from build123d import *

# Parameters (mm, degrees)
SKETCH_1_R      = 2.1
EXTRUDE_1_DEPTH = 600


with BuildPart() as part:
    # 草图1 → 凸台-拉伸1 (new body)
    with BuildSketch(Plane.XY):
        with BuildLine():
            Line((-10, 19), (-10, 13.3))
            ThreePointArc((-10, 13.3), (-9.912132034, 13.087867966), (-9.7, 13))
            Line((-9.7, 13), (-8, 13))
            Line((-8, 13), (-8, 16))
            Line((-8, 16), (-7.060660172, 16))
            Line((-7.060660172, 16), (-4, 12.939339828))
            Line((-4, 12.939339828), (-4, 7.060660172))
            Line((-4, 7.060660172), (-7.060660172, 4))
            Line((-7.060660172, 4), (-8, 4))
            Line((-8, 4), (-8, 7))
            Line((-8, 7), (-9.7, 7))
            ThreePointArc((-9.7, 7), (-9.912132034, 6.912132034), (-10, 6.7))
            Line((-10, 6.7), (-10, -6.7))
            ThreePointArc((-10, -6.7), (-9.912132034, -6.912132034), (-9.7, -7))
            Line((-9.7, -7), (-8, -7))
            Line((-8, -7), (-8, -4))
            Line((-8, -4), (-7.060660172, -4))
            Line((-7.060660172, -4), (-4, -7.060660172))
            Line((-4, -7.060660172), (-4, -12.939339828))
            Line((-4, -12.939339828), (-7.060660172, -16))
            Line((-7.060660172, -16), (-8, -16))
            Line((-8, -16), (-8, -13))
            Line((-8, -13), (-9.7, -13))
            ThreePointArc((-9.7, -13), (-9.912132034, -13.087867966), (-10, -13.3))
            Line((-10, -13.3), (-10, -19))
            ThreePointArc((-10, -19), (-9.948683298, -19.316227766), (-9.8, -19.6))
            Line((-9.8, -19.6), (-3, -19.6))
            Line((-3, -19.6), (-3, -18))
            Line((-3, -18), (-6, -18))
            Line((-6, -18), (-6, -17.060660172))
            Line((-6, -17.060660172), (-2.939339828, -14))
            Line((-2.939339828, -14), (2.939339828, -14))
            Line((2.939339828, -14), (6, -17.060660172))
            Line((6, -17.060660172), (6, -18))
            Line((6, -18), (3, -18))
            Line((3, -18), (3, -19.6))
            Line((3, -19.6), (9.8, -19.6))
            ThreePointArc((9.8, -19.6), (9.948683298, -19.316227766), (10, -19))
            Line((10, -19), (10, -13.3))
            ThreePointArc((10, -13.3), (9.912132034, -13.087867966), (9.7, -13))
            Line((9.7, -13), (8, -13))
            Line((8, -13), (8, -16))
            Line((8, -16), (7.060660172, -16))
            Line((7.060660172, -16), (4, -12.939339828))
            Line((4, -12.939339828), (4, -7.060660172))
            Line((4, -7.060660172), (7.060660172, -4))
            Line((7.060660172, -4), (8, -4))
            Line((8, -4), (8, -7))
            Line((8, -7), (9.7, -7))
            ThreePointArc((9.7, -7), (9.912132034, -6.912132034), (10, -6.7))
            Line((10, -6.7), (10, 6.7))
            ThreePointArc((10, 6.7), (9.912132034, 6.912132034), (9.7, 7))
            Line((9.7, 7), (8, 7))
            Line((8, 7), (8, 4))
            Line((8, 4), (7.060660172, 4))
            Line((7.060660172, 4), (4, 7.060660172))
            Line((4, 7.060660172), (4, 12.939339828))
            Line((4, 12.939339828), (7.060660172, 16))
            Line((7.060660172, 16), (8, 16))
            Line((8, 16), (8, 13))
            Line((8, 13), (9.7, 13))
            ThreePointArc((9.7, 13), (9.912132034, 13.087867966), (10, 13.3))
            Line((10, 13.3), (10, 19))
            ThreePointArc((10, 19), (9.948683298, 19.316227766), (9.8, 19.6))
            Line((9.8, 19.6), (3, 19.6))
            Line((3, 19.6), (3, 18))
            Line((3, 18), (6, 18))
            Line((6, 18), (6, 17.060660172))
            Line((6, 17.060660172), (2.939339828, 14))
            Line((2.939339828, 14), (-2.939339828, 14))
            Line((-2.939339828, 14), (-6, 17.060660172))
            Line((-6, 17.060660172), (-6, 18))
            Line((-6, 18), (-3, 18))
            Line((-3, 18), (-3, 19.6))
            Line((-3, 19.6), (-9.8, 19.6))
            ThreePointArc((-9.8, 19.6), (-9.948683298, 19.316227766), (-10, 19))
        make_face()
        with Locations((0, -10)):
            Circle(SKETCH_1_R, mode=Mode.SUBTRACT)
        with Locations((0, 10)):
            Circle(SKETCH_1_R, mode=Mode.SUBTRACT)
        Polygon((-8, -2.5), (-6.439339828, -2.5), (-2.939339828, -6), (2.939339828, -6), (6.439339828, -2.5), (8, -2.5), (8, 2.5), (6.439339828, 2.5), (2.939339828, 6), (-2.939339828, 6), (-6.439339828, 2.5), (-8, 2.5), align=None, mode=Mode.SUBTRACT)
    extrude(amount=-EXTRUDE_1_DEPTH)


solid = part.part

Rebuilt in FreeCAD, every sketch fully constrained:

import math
import FreeCAD as App
import Part
import Sketcher
from FreeCAD import Vector

doc = App.newDocument("Part")
body = doc.addObject("PartDesign::Body", "Body")

sketch1 = body.newObject("Sketcher::SketchObject", "Sketch")
sketch1.AttachmentSupport = (doc.getObject("XY_Plane"), [""])
sketch1.MapMode = "FlatFace"
sketch1.addGeometry(Part.LineSegment(Vector(-10, 19, 0), Vector(-10, 13.3, 0)), False)
sketch1.addGeometry(Part.ArcOfCircle(Part.Circle(Vector(-9.7, 13.3, 0), Vector(0, 0, 1), 0.3), math.radians(-180), math.radians(-90)), False)
sketch1.addGeometry(Part.LineSegment(Vector(-9.7, 13, 0), Vector(-8, 13, 0)), False)
sketch1.addGeometry(Part.LineSegment(Vector(-8, 13, 0), Vector(-8, 16, 0)), False)
sketch1.addGeometry(Part.LineSegment(Vector(-8, 16, 0), Vector(-7.06, 16, 0)), False)
sketch1.addGeometry(Part.LineSegment(Vector(-7.06, 16, 0), Vector(-4, 12.94, 0)), False)
sketch1.addGeometry(Part.LineSegment(Vector(-4, 12.94, 0), Vector(-4, 7.06, 0)), False)
sketch1.addGeometry(Part.LineSegment(Vector(-4, 7.06, 0), Vector(-7.06, 4, 0)), False)
sketch1.addGeometry(Part.LineSegment(Vector(-7.06, 4, 0), Vector(-8, 4, 0)), False)
sketch1.addGeometry(Part.LineSegment(Vector(-8, 4, 0), Vector(-8, 7, 0)), False)
sketch1.addGeometry(Part.LineSegment(Vector(-8, 7, 0), Vector(-9.7, 7, 0)), False)
sketch1.addGeometry(Part.ArcOfCircle(Part.Circle(Vector(-9.7, 6.7, 0), Vector(0, 0, 1), 0.3), math.radians(90), math.radians(180)), False)
sketch1.addGeometry(Part.LineSegment(Vector(-10, 6.7, 0), Vector(-10, -6.7, 0)), False)
sketch1.addGeometry(Part.ArcOfCircle(Part.Circle(Vector(-9.7, -6.7, 0), Vector(0, 0, 1), 0.3), math.radians(-180), math.radians(-90)), False)
sketch1.addGeometry(Part.LineSegment(Vector(-9.7, -7, 0), Vector(-8, -7, 0)), False)
sketch1.addGeometry(Part.LineSegment(Vector(-8, -7, 0), Vector(-8, -4, 0)), False)
sketch1.addGeometry(Part.LineSegment(Vector(-8, -4, 0), Vector(-7.06, -4, 0)), False)
sketch1.addGeometry(Part.LineSegment(Vector(-7.06, -4, 0), Vector(-4, -7.06, 0)), False)
sketch1.addGeometry(Part.LineSegment(Vector(-4, -7.06, 0), Vector(-4, -12.94, 0)), False)
sketch1.addGeometry(Part.LineSegment(Vector(-4, -12.94, 0), Vector(-7.06, -16, 0)), False)
sketch1.addGeometry(Part.LineSegment(Vector(-7.06, -16, 0), Vector(-8, -16, 0)), False)
sketch1.addGeometry(Part.LineSegment(Vector(-8, -16, 0), Vector(-8, -13, 0)), False)
sketch1.addGeometry(Part.LineSegment(Vector(-8, -13, 0), Vector(-9.7, -13, 0)), False)
sketch1.addGeometry(Part.ArcOfCircle(Part.Circle(Vector(-9.7, -13.3, 0), Vector(0, 0, 1), 0.3), math.radians(90), math.radians(180)), False)
sketch1.addGeometry(Part.LineSegment(Vector(-10, -13.3, 0), Vector(-10, -19, 0)), False)
sketch1.addGeometry(Part.ArcOfCircle(Part.Circle(Vector(-9, -19, 0), Vector(0, 0, 1), 1), math.radians(180), math.radians(217)), False)
sketch1.addGeometry(Part.LineSegment(Vector(-9.8, -19.6, 0), Vector(-3, -19.6, 0)), False)
sketch1.addGeometry(Part.LineSegment(Vector(-3, -19.6, 0), Vector(-3, -18, 0)), False)
sketch1.addGeometry(Part.LineSegment(Vector(-3, -18, 0), Vector(-6, -18, 0)), False)
sketch1.addGeometry(Part.LineSegment(Vector(-6, -18, 0), Vector(-6, -17.06, 0)), False)
sketch1.addGeometry(Part.LineSegment(Vector(-6, -17.06, 0), Vector(-2.94, -14, 0)), False)
sketch1.addGeometry(Part.LineSegment(Vector(-2.94, -14, 0), Vector(2.94, -14, 0)), False)
sketch1.addGeometry(Part.LineSegment(Vector(2.94, -14, 0), Vector(6, -17.06, 0)), False)
sketch1.addGeometry(Part.LineSegment(Vector(6, -17.06, 0), Vector(6, -18, 0)), False)
sketch1.addGeometry(Part.LineSegment(Vector(6, -18, 0), Vector(3, -18, 0)), False)
sketch1.addGeometry(Part.LineSegment(Vector(3, -18, 0), Vector(3, -19.6, 0)), False)
sketch1.addGeometry(Part.LineSegment(Vector(3, -19.6, 0), Vector(9.8, -19.6, 0)), False)
sketch1.addGeometry(Part.ArcOfCircle(Part.Circle(Vector(9, -19, 0), Vector(0, 0, 1), 1), math.radians(-37), math.radians(0)), False)
sketch1.addGeometry(Part.LineSegment(Vector(10, -19, 0), Vector(10, -13.3, 0)), False)
sketch1.addGeometry(Part.ArcOfCircle(Part.Circle(Vector(9.7, -13.3, 0), Vector(0, 0, 1), 0.3), math.radians(0), math.radians(90)), False)
sketch1.addGeometry(Part.LineSegment(Vector(9.7, -13, 0), Vector(8, -13, 0)), False)
sketch1.addGeometry(Part.LineSegment(Vector(8, -13, 0), Vector(8, -16, 0)), False)
sketch1.addGeometry(Part.LineSegment(Vector(8, -16, 0), Vector(7.06, -16, 0)), False)
sketch1.addGeometry(Part.LineSegment(Vector(7.06, -16, 0), Vector(4, -12.94, 0)), False)
sketch1.addGeometry(Part.LineSegment(Vector(4, -12.94, 0), Vector(4, -7.06, 0)), False)
sketch1.addGeometry(Part.LineSegment(Vector(4, -7.06, 0), Vector(7.06, -4, 0)), False)
sketch1.addGeometry(Part.LineSegment(Vector(7.06, -4, 0), Vector(8, -4, 0)), False)
sketch1.addGeometry(Part.LineSegment(Vector(8, -4, 0), Vector(8, -7, 0)), False)
sketch1.addGeometry(Part.LineSegment(Vector(8, -7, 0), Vector(9.7, -7, 0)), False)
sketch1.addGeometry(Part.ArcOfCircle(Part.Circle(Vector(9.7, -6.7, 0), Vector(0, 0, 1), 0.3), math.radians(-90), math.radians(0)), False)
sketch1.addGeometry(Part.LineSegment(Vector(10, -6.7, 0), Vector(10, 6.7, 0)), False)
sketch1.addGeometry(Part.ArcOfCircle(Part.Circle(Vector(9.7, 6.7, 0), Vector(0, 0, 1), 0.3), math.radians(0), math.radians(90)), False)
sketch1.addGeometry(Part.LineSegment(Vector(9.7, 7, 0), Vector(8, 7, 0)), False)
sketch1.addGeometry(Part.LineSegment(Vector(8, 7, 0), Vector(8, 4, 0)), False)
sketch1.addGeometry(Part.LineSegment(Vector(8, 4, 0), Vector(7.06, 4, 0)), False)
sketch1.addGeometry(Part.LineSegment(Vector(7.06, 4, 0), Vector(4, 7.06, 0)), False)
sketch1.addGeometry(Part.LineSegment(Vector(4, 7.06, 0), Vector(4, 12.94, 0)), False)
sketch1.addGeometry(Part.LineSegment(Vector(4, 12.94, 0), Vector(7.06, 16, 0)), False)
sketch1.addGeometry(Part.LineSegment(Vector(7.06, 16, 0), Vector(8, 16, 0)), False)
sketch1.addGeometry(Part.LineSegment(Vector(8, 16, 0), Vector(8, 13, 0)), False)
sketch1.addGeometry(Part.LineSegment(Vector(8, 13, 0), Vector(9.7, 13, 0)), False)
sketch1.addGeometry(Part.ArcOfCircle(Part.Circle(Vector(9.7, 13.3, 0), Vector(0, 0, 1), 0.3), math.radians(-90), math.radians(0)), False)
sketch1.addGeometry(Part.LineSegment(Vector(10, 13.3, 0), Vector(10, 19, 0)), False)
sketch1.addGeometry(Part.ArcOfCircle(Part.Circle(Vector(9, 19, 0), Vector(0, 0, 1), 1), math.radians(0), math.radians(37)), False)
sketch1.addGeometry(Part.LineSegment(Vector(9.8, 19.6, 0), Vector(3, 19.6, 0)), False)
sketch1.addGeometry(Part.LineSegment(Vector(3, 19.6, 0), Vector(3, 18, 0)), False)
sketch1.addGeometry(Part.LineSegment(Vector(3, 18, 0), Vector(6, 18, 0)), False)
sketch1.addGeometry(Part.LineSegment(Vector(6, 18, 0), Vector(6, 17.06, 0)), False)
sketch1.addGeometry(Part.LineSegment(Vector(6, 17.06, 0), Vector(2.94, 14, 0)), False)
sketch1.addGeometry(Part.LineSegment(Vector(2.94, 14, 0), Vector(-2.94, 14, 0)), False)
sketch1.addGeometry(Part.LineSegment(Vector(-2.94, 14, 0), Vector(-6, 17.06, 0)), False)
sketch1.addGeometry(Part.LineSegment(Vector(-6, 17.06, 0), Vector(-6, 18, 0)), False)
sketch1.addGeometry(Part.LineSegment(Vector(-6, 18, 0), Vector(-3, 18, 0)), False)
sketch1.addGeometry(Part.LineSegment(Vector(-3, 18, 0), Vector(-3, 19.6, 0)), False)
sketch1.addGeometry(Part.LineSegment(Vector(-3, 19.6, 0), Vector(-9.8, 19.6, 0)), False)
sketch1.addGeometry(Part.ArcOfCircle(Part.Circle(Vector(-9, 19, 0), Vector(0, 0, 1), 1), math.radians(143), math.radians(180)), False)
sketch1.addGeometry(Part.Circle(Vector(0, -10, 0), Vector(0, 0, 1), 2.1), False)
sketch1.addGeometry(Part.LineSegment(Vector(-6.44, -2.5, 0), Vector(-8, -2.5, 0)), False)
sketch1.addGeometry(Part.LineSegment(Vector(-8, -2.5, 0), Vector(-8, 2.5, 0)), False)
sketch1.addGeometry(Part.LineSegment(Vector(-8, 2.5, 0), Vector(-6.44, 2.5, 0)), False)
sketch1.addGeometry(Part.LineSegment(Vector(-6.44, 2.5, 0), Vector(-2.94, 6, 0)), False)
sketch1.addGeometry(Part.LineSegment(Vector(-2.94, 6, 0), Vector(2.94, 6, 0)), False)
sketch1.addGeometry(Part.LineSegment(Vector(2.94, 6, 0), Vector(6.44, 2.5, 0)), False)
sketch1.addGeometry(Part.LineSegment(Vector(6.44, 2.5, 0), Vector(8, 2.5, 0)), False)
sketch1.addGeometry(Part.LineSegment(Vector(8, 2.5, 0), Vector(8, -2.5, 0)), False)
sketch1.addGeometry(Part.LineSegment(Vector(8, -2.5, 0), Vector(6.44, -2.5, 0)), False)
sketch1.addGeometry(Part.LineSegment(Vector(6.44, -2.5, 0), Vector(2.94, -6, 0)), False)
sketch1.addGeometry(Part.LineSegment(Vector(2.94, -6, 0), Vector(-2.94, -6, 0)), False)
sketch1.addGeometry(Part.LineSegment(Vector(-2.94, -6, 0), Vector(-6.44, -2.5, 0)), False)
sketch1.addGeometry(Part.Circle(Vector(0, 10, 0), Vector(0, 0, 1), 2.1), False)
sketch1.addConstraint(Sketcher.Constraint("Tangent", 0, 2, 1, 1))
sketch1.addConstraint(Sketcher.Constraint("Tangent", 1, 2, 2, 1))
sketch1.addConstraint(Sketcher.Constraint("Coincident", 2, 2, 3, 1))
sketch1.addConstraint(Sketcher.Constraint("Coincident", 3, 2, 4, 1))
sketch1.addConstraint(Sketcher.Constraint("Coincident", 4, 2, 5, 1))
sketch1.addConstraint(Sketcher.Constraint("Coincident", 5, 2, 6, 1))
sketch1.addConstraint(Sketcher.Constraint("Coincident", 6, 2, 7, 1))
sketch1.addConstraint(Sketcher.Constraint("Coincident", 7, 2, 8, 1))
sketch1.addConstraint(Sketcher.Constraint("Coincident", 8, 2, 9, 1))
sketch1.addConstraint(Sketcher.Constraint("Coincident", 9, 2, 10, 1))
sketch1.addConstraint(Sketcher.Constraint("Tangent", 10, 2, 11, 1))
sketch1.addConstraint(Sketcher.Constraint("Tangent", 11, 2, 12, 1))
sketch1.addConstraint(Sketcher.Constraint("Tangent", 12, 2, 13, 1))
sketch1.addConstraint(Sketcher.Constraint("Tangent", 13, 2, 14, 1))
sketch1.addConstraint(Sketcher.Constraint("Coincident", 14, 2, 15, 1))
sketch1.addConstraint(Sketcher.Constraint("Coincident", 15, 2, 16, 1))
sketch1.addConstraint(Sketcher.Constraint("Coincident", 16, 2, 17, 1))
sketch1.addConstraint(Sketcher.Constraint("Coincident", 17, 2, 18, 1))
sketch1.addConstraint(Sketcher.Constraint("Coincident", 18, 2, 19, 1))
sketch1.addConstraint(Sketcher.Constraint("Coincident", 19, 2, 20, 1))
sketch1.addConstraint(Sketcher.Constraint("Coincident", 20, 2, 21, 1))
sketch1.addConstraint(Sketcher.Constraint("Coincident", 21, 2, 22, 1))
sketch1.addConstraint(Sketcher.Constraint("Tangent", 22, 2, 23, 1))
sketch1.addConstraint(Sketcher.Constraint("Tangent", 23, 2, 24, 1))
sketch1.addConstraint(Sketcher.Constraint("Tangent", 24, 2, 25, 1))
sketch1.addConstraint(Sketcher.Constraint("Coincident", 25, 2, 26, 1))
sketch1.addConstraint(Sketcher.Constraint("Coincident", 26, 2, 27, 1))
sketch1.addConstraint(Sketcher.Constraint("Coincident", 27, 2, 28, 1))
sketch1.addConstraint(Sketcher.Constraint("Coincident", 28, 2, 29, 1))
sketch1.addConstraint(Sketcher.Constraint("Coincident", 29, 2, 30, 1))
sketch1.addConstraint(Sketcher.Constraint("Coincident", 30, 2, 31, 1))
sketch1.addConstraint(Sketcher.Constraint("Coincident", 31, 2, 32, 1))
sketch1.addConstraint(Sketcher.Constraint("Coincident", 32, 2, 33, 1))
sketch1.addConstraint(Sketcher.Constraint("Coincident", 33, 2, 34, 1))
sketch1.addConstraint(Sketcher.Constraint("Coincident", 34, 2, 35, 1))
sketch1.addConstraint(Sketcher.Constraint("Coincident", 35, 2, 36, 1))
sketch1.addConstraint(Sketcher.Constraint("Coincident", 36, 2, 37, 1))
sketch1.addConstraint(Sketcher.Constraint("Tangent", 37, 2, 38, 1))
sketch1.addConstraint(Sketcher.Constraint("Tangent", 38, 2, 39, 1))
sketch1.addConstraint(Sketcher.Constraint("Tangent", 39, 2, 40, 1))
sketch1.addConstraint(Sketcher.Constraint("Coincident", 40, 2, 41, 1))
sketch1.addConstraint(Sketcher.Constraint("Coincident", 41, 2, 42, 1))
sketch1.addConstraint(Sketcher.Constraint("Coincident", 42, 2, 43, 1))
sketch1.addConstraint(Sketcher.Constraint("Coincident", 43, 2, 44, 1))
sketch1.addConstraint(Sketcher.Constraint("Coincident", 44, 2, 45, 1))
sketch1.addConstraint(Sketcher.Constraint("Coincident", 45, 2, 46, 1))
sketch1.addConstraint(Sketcher.Constraint("Coincident", 46, 2, 47, 1))
sketch1.addConstraint(Sketcher.Constraint("Coincident", 47, 2, 48, 1))
sketch1.addConstraint(Sketcher.Constraint("Tangent", 48, 2, 49, 1))
sketch1.addConstraint(Sketcher.Constraint("Tangent", 49, 2, 50, 1))
sketch1.addConstraint(Sketcher.Constraint("Tangent", 50, 2, 51, 1))
sketch1.addConstraint(Sketcher.Constraint("Tangent", 51, 2, 52, 1))
sketch1.addConstraint(Sketcher.Constraint("Coincident", 52, 2, 53, 1))
sketch1.addConstraint(Sketcher.Constraint("Coincident", 53, 2, 54, 1))
sketch1.addConstraint(Sketcher.Constraint("Coincident", 54, 2, 55, 1))
sketch1.addConstraint(Sketcher.Constraint("Coincident", 55, 2, 56, 1))
sketch1.addConstraint(Sketcher.Constraint("Coincident", 56, 2, 57, 1))
sketch1.addConstraint(Sketcher.Constraint("Coincident", 57, 2, 58, 1))
sketch1.addConstraint(Sketcher.Constraint("Coincident", 58, 2, 59, 1))
sketch1.addConstraint(Sketcher.Constraint("Coincident", 59, 2, 60, 1))
sketch1.addConstraint(Sketcher.Constraint("Tangent", 60, 2, 61, 1))
sketch1.addConstraint(Sketcher.Constraint("Tangent", 61, 2, 62, 1))
sketch1.addConstraint(Sketcher.Constraint("Tangent", 62, 2, 63, 1))
sketch1.addConstraint(Sketcher.Constraint("Coincident", 63, 2, 64, 1))
sketch1.addConstraint(Sketcher.Constraint("Coincident", 64, 2, 65, 1))
sketch1.addConstraint(Sketcher.Constraint("Coincident", 65, 2, 66, 1))
sketch1.addConstraint(Sketcher.Constraint("Coincident", 66, 2, 67, 1))
sketch1.addConstraint(Sketcher.Constraint("Coincident", 67, 2, 68, 1))
sketch1.addConstraint(Sketcher.Constraint("Coincident", 68, 2, 69, 1))
sketch1.addConstraint(Sketcher.Constraint("Coincident", 69, 2, 70, 1))
sketch1.addConstraint(Sketcher.Constraint("Coincident", 70, 2, 71, 1))
sketch1.addConstraint(Sketcher.Constraint("Coincident", 71, 2, 72, 1))
sketch1.addConstraint(Sketcher.Constraint("Coincident", 72, 2, 73, 1))
sketch1.addConstraint(Sketcher.Constraint("Coincident", 73, 2, 74, 1))
sketch1.addConstraint(Sketcher.Constraint("Coincident", 74, 2, 75, 1))
sketch1.addConstraint(Sketcher.Constraint("Tangent", 75, 2, 0, 1))
sketch1.addConstraint(Sketcher.Constraint("Coincident", 77, 2, 78, 1))
sketch1.addConstraint(Sketcher.Constraint("Coincident", 78, 2, 79, 1))
sketch1.addConstraint(Sketcher.Constraint("Coincident", 79, 2, 80, 1))
sketch1.addConstraint(Sketcher.Constraint("Coincident", 80, 2, 81, 1))
sketch1.addConstraint(Sketcher.Constraint("Coincident", 81, 2, 82, 1))
sketch1.addConstraint(Sketcher.Constraint("Coincident", 82, 2, 83, 1))
sketch1.addConstraint(Sketcher.Constraint("Coincident", 83, 2, 84, 1))
sketch1.addConstraint(Sketcher.Constraint("Coincident", 84, 2, 85, 1))
sketch1.addConstraint(Sketcher.Constraint("Coincident", 85, 2, 86, 1))
sketch1.addConstraint(Sketcher.Constraint("Coincident", 86, 2, 87, 1))
sketch1.addConstraint(Sketcher.Constraint("Coincident", 87, 2, 88, 1))
sketch1.addConstraint(Sketcher.Constraint("Coincident", 88, 2, 77, 1))
sketch1.addConstraint(Sketcher.Constraint("Vertical", 0))
sketch1.addConstraint(Sketcher.Constraint("Horizontal", 2))
sketch1.addConstraint(Sketcher.Constraint("Vertical", 3))
sketch1.addConstraint(Sketcher.Constraint("Horizontal", 4))
sketch1.addConstraint(Sketcher.Constraint("Vertical", 6))
sketch1.addConstraint(Sketcher.Constraint("Horizontal", 8))
sketch1.addConstraint(Sketcher.Constraint("Vertical", 9))
sketch1.addConstraint(Sketcher.Constraint("Horizontal", 10))
sketch1.addConstraint(Sketcher.Constraint("Vertical", 12))
sketch1.addConstraint(Sketcher.Constraint("Horizontal", 14))
sketch1.addConstraint(Sketcher.Constraint("Vertical", 15))
sketch1.addConstraint(Sketcher.Constraint("Horizontal", 16))
sketch1.addConstraint(Sketcher.Constraint("Vertical", 18))
sketch1.addConstraint(Sketcher.Constraint("Horizontal", 20))
sketch1.addConstraint(Sketcher.Constraint("Vertical", 21))
sketch1.addConstraint(Sketcher.Constraint("Horizontal", 22))
sketch1.addConstraint(Sketcher.Constraint("Vertical", 24))
sketch1.addConstraint(Sketcher.Constraint("Horizontal", 26))
sketch1.addConstraint(Sketcher.Constraint("Vertical", 27))
sketch1.addConstraint(Sketcher.Constraint("Horizontal", 28))
sketch1.addConstraint(Sketcher.Constraint("Vertical", 29))
sketch1.addConstraint(Sketcher.Constraint("Horizontal", 31))
sketch1.addConstraint(Sketcher.Constraint("Vertical", 33))
sketch1.addConstraint(Sketcher.Constraint("Horizontal", 34))
sketch1.addConstraint(Sketcher.Constraint("Vertical", 35))
sketch1.addConstraint(Sketcher.Constraint("Horizontal", 36))
sketch1.addConstraint(Sketcher.Constraint("Vertical", 38))
sketch1.addConstraint(Sketcher.Constraint("Horizontal", 40))
sketch1.addConstraint(Sketcher.Constraint("Vertical", 41))
sketch1.addConstraint(Sketcher.Constraint("Horizontal", 42))
sketch1.addConstraint(Sketcher.Constraint("Vertical", 44))
sketch1.addConstraint(Sketcher.Constraint("Horizontal", 46))
sketch1.addConstraint(Sketcher.Constraint("Vertical", 47))
sketch1.addConstraint(Sketcher.Constraint("Horizontal", 48))
sketch1.addConstraint(Sketcher.Constraint("Vertical", 50))
sketch1.addConstraint(Sketcher.Constraint("Horizontal", 52))
sketch1.addConstraint(Sketcher.Constraint("Vertical", 53))
sketch1.addConstraint(Sketcher.Constraint("Horizontal", 54))
sketch1.addConstraint(Sketcher.Constraint("Vertical", 56))
sketch1.addConstraint(Sketcher.Constraint("Horizontal", 58))
sketch1.addConstraint(Sketcher.Constraint("Vertical", 59))
sketch1.addConstraint(Sketcher.Constraint("Horizontal", 60))
sketch1.addConstraint(Sketcher.Constraint("Vertical", 62))
sketch1.addConstraint(Sketcher.Constraint("Horizontal", 64))
sketch1.addConstraint(Sketcher.Constraint("Vertical", 65))
sketch1.addConstraint(Sketcher.Constraint("Horizontal", 66))
sketch1.addConstraint(Sketcher.Constraint("Vertical", 67))
sketch1.addConstraint(Sketcher.Constraint("Horizontal", 69))
sketch1.addConstraint(Sketcher.Constraint("Vertical", 71))
sketch1.addConstraint(Sketcher.Constraint("Horizontal", 72))
sketch1.addConstraint(Sketcher.Constraint("Vertical", 73))
sketch1.addConstraint(Sketcher.Constraint("Horizontal", 74))
sketch1.addConstraint(Sketcher.Constraint("Horizontal", 77))
sketch1.addConstraint(Sketcher.Constraint("Vertical", 78))
sketch1.addConstraint(Sketcher.Constraint("Horizontal", 79))
sketch1.addConstraint(Sketcher.Constraint("Horizontal", 81))
sketch1.addConstraint(Sketcher.Constraint("Horizontal", 83))
sketch1.addConstraint(Sketcher.Constraint("Vertical", 84))
sketch1.addConstraint(Sketcher.Constraint("Horizontal", 85))
sketch1.addConstraint(Sketcher.Constraint("Horizontal", 87))
sketch1.addConstraint(Sketcher.Constraint("Equal", 1, 11))
sketch1.addConstraint(Sketcher.Constraint("Equal", 11, 13))
sketch1.addConstraint(Sketcher.Constraint("Equal", 13, 23))
sketch1.addConstraint(Sketcher.Constraint("Equal", 25, 37))
sketch1.addConstraint(Sketcher.Constraint("Equal", 23, 39))
sketch1.addConstraint(Sketcher.Constraint("Equal", 39, 49))
sketch1.addConstraint(Sketcher.Constraint("Equal", 49, 51))
sketch1.addConstraint(Sketcher.Constraint("Equal", 51, 61))
sketch1.addConstraint(Sketcher.Constraint("Equal", 37, 63))
sketch1.addConstraint(Sketcher.Constraint("Equal", 63, 75))
sketch1.addConstraint(Sketcher.Constraint("Equal", 76, 89))
sketch1.addConstraint(Sketcher.Constraint("Symmetric", 1, 3, 39, 3, -1, 1))
sketch1.addConstraint(Sketcher.Constraint("Symmetric", 11, 3, 49, 3, -1, 1))
sketch1.addConstraint(Sketcher.Constraint("Symmetric", 23, 3, 61, 3, -1, 1))
sketch1.addConstraint(Sketcher.Constraint("Symmetric", 76, 3, 89, 3, -1, 1))
sketch1.addConstraint(Sketcher.Constraint("Symmetric", 3, 2, 41, 2, -1, 1))
sketch1.addConstraint(Sketcher.Constraint("Symmetric", 5, 2, 43, 2, -1, 1))
sketch1.addConstraint(Sketcher.Constraint("Symmetric", 7, 2, 45, 2, -1, 1))
sketch1.addConstraint(Sketcher.Constraint("Symmetric", 14, 2, 52, 2, -1, 1))
sketch1.addConstraint(Sketcher.Constraint("Symmetric", 16, 2, 54, 2, -1, 1))
sketch1.addConstraint(Sketcher.Constraint("Symmetric", 17, 2, 55, 2, -1, 1))
sketch1.addConstraint(Sketcher.Constraint("Symmetric", 19, 2, 57, 2, -1, 1))
sketch1.addConstraint(Sketcher.Constraint("Symmetric", 25, 2, 63, 2, -1, 1))
sketch1.addConstraint(Sketcher.Constraint("Symmetric", 27, 2, 65, 2, -1, 1))
sketch1.addConstraint(Sketcher.Constraint("Symmetric", 29, 2, 67, 2, -1, 1))
sketch1.addConstraint(Sketcher.Constraint("Symmetric", 30, 2, 68, 2, -1, 1))
sketch1.addConstraint(Sketcher.Constraint("Symmetric", 32, 2, 70, 2, -1, 1))
sketch1.addConstraint(Sketcher.Constraint("Symmetric", 34, 2, 72, 2, -1, 1))
sketch1.addConstraint(Sketcher.Constraint("Symmetric", 36, 2, 74, 2, -1, 1))
sketch1.addConstraint(Sketcher.Constraint("Symmetric", 77, 2, 83, 2, -1, 1))
sketch1.addConstraint(Sketcher.Constraint("Symmetric", 79, 2, 85, 2, -1, 1))
sketch1.addConstraint(Sketcher.Constraint("Symmetric", 80, 2, 86, 2, -1, 1))
sketch1.addConstraint(Sketcher.Constraint("Symmetric", 25, 3, 37, 3, -2))
sketch1.addConstraint(Sketcher.Constraint("Symmetric", 29, 2, 32, 2, -2))
sketch1.addConstraint(Sketcher.Constraint("Symmetric", 27, 2, 34, 2, -2))
sketch1.addConstraint(Sketcher.Constraint("Symmetric", 21, 2, 40, 2, -2))
sketch1.addConstraint(Sketcher.Constraint("Symmetric", 19, 2, 42, 2, -2))
sketch1.addConstraint(Sketcher.Constraint("Symmetric", 18, 2, 43, 2, -2))
sketch1.addConstraint(Sketcher.Constraint("Symmetric", 16, 2, 45, 2, -2))
sketch1.addConstraint(Sketcher.Constraint("Symmetric", 14, 2, 47, 2, -2))
sketch1.addConstraint(Sketcher.Constraint("Symmetric", 79, 2, 82, 2, -2))
sketch1.addConstraint(Sketcher.Constraint("PointOnObject", 76, 3, -2))
sketch1.addConstraint(Sketcher.Constraint("Perpendicular", 5, 7))
sketch1.addConstraint(Sketcher.Constraint("Perpendicular", 7, 17))
sketch1.addConstraint(Sketcher.Constraint("Perpendicular", 17, 19))
sketch1.addConstraint(Sketcher.Constraint("Parallel", 19, 30))
sketch1.addConstraint(Sketcher.Constraint("Perpendicular", 30, 32))
sketch1.addConstraint(Sketcher.Constraint("Parallel", 32, 43))
sketch1.addConstraint(Sketcher.Constraint("Perpendicular", 43, 45))
sketch1.addConstraint(Sketcher.Constraint("Perpendicular", 55, 57))
sketch1.addConstraint(Sketcher.Constraint("Perpendicular", 68, 70))
sketch1.addConstraint(Sketcher.Constraint("Perpendicular", 70, 80))
sketch1.addConstraint(Sketcher.Constraint("Perpendicular", 80, 82))
sketch1.addConstraint(Sketcher.Constraint("Perpendicular", 86, 88))
sketch1.addConstraint(Sketcher.Constraint("Horizontal", 26, 2, 35, 2))
sketch1.addConstraint(Sketcher.Constraint("Vertical", 1, 3, 11, 3))
sketch1.addConstraint(Sketcher.Constraint("Vertical", 4, 2, 7, 2))
sketch1.addConstraint(Sketcher.Constraint("Vertical", 3, 2, 8, 2))
sketch1.addConstraint(Sketcher.Constraint("Vertical", 9, 2, 14, 2))
sketch1.addConstraint(Sketcher.Constraint("Vertical", 53, 2, 58, 2))
sketch1.addConstraint(Sketcher.Constraint("Vertical", 21, 2, 77, 2))
sketch1.addConstraint(Sketcher.Constraint("Vertical", 69, 2, 80, 2))
sketch1.addConstraint(Sketcher.Constraint("Vertical", 80, 2, 87, 2))
sketch1.addConstraint(Sketcher.Constraint("Equal", 72, 3))
sketch1.addConstraint(Sketcher.Constraint("Equal", 87, 6))
sketch1.addConstraint(Sketcher.Constraint("Equal", 3, 9))
sketch1.addConstraint(Sketcher.Constraint("Equal", 58, 29))
sketch1.addConstraint(Sketcher.Constraint("Equal", 19, 30))
sketch1.addConstraint(Sketcher.Constraint("Radius", 25, 1.0))
sketch1.addConstraint(Sketcher.Constraint("Diameter", 76, 4.2))
sketch1.addConstraint(Sketcher.Constraint("Radius", 1, 0.3))
sketch1.addConstraint(Sketcher.Constraint("DistanceX", 28, 2, 28, 1, 3.0))
sketch1.addConstraint(Sketcher.Constraint("DistanceY", 78, 1, 78, 2, 5.0))
sketch1.addConstraint(Sketcher.Constraint("DistanceX", 2, 1, 2, 2, 1.7))
sketch1.addConstraint(Sketcher.Constraint("DistanceX", 26, 1, 26, 2, 6.8))
sketch1.addConstraint(Sketcher.Constraint("DistanceY", 0, 2, 0, 1, 5.7))
sketch1.addConstraint(Sketcher.Constraint("DistanceY", 12, 2, 12, 1, 13.4))
sketch1.addConstraint(Sketcher.Constraint("DistanceY", 27, 1, 27, 2, 1.6))
sketch1.addConstraint(Sketcher.Constraint("DistanceX", 25, 3, -1, 1, 9.0))
sketch1.addConstraint(Sketcher.Constraint("DistanceY", 25, 3, -1, 1, 19.0))
sketch1.addConstraint(Sketcher.Constraint("DistanceY", 76, 3, -1, 1, 10.0))
sketch1.addConstraint(Sketcher.Constraint("DistanceX", 5, 2, -1, 1, 4.0))
sketch1.addConstraint(Sketcher.Constraint("DistanceY", -1, 1, 80, 2, 6.0))
sketch1.addConstraint(Sketcher.Constraint("DistanceX", 4, 1, 4, 2, 0.93934))
pad1 = body.newObject("PartDesign::Pad", "Pad")
pad1.Profile = sketch1
pad1.Length = 600
pad1.Reversed = True

doc.recompute()
